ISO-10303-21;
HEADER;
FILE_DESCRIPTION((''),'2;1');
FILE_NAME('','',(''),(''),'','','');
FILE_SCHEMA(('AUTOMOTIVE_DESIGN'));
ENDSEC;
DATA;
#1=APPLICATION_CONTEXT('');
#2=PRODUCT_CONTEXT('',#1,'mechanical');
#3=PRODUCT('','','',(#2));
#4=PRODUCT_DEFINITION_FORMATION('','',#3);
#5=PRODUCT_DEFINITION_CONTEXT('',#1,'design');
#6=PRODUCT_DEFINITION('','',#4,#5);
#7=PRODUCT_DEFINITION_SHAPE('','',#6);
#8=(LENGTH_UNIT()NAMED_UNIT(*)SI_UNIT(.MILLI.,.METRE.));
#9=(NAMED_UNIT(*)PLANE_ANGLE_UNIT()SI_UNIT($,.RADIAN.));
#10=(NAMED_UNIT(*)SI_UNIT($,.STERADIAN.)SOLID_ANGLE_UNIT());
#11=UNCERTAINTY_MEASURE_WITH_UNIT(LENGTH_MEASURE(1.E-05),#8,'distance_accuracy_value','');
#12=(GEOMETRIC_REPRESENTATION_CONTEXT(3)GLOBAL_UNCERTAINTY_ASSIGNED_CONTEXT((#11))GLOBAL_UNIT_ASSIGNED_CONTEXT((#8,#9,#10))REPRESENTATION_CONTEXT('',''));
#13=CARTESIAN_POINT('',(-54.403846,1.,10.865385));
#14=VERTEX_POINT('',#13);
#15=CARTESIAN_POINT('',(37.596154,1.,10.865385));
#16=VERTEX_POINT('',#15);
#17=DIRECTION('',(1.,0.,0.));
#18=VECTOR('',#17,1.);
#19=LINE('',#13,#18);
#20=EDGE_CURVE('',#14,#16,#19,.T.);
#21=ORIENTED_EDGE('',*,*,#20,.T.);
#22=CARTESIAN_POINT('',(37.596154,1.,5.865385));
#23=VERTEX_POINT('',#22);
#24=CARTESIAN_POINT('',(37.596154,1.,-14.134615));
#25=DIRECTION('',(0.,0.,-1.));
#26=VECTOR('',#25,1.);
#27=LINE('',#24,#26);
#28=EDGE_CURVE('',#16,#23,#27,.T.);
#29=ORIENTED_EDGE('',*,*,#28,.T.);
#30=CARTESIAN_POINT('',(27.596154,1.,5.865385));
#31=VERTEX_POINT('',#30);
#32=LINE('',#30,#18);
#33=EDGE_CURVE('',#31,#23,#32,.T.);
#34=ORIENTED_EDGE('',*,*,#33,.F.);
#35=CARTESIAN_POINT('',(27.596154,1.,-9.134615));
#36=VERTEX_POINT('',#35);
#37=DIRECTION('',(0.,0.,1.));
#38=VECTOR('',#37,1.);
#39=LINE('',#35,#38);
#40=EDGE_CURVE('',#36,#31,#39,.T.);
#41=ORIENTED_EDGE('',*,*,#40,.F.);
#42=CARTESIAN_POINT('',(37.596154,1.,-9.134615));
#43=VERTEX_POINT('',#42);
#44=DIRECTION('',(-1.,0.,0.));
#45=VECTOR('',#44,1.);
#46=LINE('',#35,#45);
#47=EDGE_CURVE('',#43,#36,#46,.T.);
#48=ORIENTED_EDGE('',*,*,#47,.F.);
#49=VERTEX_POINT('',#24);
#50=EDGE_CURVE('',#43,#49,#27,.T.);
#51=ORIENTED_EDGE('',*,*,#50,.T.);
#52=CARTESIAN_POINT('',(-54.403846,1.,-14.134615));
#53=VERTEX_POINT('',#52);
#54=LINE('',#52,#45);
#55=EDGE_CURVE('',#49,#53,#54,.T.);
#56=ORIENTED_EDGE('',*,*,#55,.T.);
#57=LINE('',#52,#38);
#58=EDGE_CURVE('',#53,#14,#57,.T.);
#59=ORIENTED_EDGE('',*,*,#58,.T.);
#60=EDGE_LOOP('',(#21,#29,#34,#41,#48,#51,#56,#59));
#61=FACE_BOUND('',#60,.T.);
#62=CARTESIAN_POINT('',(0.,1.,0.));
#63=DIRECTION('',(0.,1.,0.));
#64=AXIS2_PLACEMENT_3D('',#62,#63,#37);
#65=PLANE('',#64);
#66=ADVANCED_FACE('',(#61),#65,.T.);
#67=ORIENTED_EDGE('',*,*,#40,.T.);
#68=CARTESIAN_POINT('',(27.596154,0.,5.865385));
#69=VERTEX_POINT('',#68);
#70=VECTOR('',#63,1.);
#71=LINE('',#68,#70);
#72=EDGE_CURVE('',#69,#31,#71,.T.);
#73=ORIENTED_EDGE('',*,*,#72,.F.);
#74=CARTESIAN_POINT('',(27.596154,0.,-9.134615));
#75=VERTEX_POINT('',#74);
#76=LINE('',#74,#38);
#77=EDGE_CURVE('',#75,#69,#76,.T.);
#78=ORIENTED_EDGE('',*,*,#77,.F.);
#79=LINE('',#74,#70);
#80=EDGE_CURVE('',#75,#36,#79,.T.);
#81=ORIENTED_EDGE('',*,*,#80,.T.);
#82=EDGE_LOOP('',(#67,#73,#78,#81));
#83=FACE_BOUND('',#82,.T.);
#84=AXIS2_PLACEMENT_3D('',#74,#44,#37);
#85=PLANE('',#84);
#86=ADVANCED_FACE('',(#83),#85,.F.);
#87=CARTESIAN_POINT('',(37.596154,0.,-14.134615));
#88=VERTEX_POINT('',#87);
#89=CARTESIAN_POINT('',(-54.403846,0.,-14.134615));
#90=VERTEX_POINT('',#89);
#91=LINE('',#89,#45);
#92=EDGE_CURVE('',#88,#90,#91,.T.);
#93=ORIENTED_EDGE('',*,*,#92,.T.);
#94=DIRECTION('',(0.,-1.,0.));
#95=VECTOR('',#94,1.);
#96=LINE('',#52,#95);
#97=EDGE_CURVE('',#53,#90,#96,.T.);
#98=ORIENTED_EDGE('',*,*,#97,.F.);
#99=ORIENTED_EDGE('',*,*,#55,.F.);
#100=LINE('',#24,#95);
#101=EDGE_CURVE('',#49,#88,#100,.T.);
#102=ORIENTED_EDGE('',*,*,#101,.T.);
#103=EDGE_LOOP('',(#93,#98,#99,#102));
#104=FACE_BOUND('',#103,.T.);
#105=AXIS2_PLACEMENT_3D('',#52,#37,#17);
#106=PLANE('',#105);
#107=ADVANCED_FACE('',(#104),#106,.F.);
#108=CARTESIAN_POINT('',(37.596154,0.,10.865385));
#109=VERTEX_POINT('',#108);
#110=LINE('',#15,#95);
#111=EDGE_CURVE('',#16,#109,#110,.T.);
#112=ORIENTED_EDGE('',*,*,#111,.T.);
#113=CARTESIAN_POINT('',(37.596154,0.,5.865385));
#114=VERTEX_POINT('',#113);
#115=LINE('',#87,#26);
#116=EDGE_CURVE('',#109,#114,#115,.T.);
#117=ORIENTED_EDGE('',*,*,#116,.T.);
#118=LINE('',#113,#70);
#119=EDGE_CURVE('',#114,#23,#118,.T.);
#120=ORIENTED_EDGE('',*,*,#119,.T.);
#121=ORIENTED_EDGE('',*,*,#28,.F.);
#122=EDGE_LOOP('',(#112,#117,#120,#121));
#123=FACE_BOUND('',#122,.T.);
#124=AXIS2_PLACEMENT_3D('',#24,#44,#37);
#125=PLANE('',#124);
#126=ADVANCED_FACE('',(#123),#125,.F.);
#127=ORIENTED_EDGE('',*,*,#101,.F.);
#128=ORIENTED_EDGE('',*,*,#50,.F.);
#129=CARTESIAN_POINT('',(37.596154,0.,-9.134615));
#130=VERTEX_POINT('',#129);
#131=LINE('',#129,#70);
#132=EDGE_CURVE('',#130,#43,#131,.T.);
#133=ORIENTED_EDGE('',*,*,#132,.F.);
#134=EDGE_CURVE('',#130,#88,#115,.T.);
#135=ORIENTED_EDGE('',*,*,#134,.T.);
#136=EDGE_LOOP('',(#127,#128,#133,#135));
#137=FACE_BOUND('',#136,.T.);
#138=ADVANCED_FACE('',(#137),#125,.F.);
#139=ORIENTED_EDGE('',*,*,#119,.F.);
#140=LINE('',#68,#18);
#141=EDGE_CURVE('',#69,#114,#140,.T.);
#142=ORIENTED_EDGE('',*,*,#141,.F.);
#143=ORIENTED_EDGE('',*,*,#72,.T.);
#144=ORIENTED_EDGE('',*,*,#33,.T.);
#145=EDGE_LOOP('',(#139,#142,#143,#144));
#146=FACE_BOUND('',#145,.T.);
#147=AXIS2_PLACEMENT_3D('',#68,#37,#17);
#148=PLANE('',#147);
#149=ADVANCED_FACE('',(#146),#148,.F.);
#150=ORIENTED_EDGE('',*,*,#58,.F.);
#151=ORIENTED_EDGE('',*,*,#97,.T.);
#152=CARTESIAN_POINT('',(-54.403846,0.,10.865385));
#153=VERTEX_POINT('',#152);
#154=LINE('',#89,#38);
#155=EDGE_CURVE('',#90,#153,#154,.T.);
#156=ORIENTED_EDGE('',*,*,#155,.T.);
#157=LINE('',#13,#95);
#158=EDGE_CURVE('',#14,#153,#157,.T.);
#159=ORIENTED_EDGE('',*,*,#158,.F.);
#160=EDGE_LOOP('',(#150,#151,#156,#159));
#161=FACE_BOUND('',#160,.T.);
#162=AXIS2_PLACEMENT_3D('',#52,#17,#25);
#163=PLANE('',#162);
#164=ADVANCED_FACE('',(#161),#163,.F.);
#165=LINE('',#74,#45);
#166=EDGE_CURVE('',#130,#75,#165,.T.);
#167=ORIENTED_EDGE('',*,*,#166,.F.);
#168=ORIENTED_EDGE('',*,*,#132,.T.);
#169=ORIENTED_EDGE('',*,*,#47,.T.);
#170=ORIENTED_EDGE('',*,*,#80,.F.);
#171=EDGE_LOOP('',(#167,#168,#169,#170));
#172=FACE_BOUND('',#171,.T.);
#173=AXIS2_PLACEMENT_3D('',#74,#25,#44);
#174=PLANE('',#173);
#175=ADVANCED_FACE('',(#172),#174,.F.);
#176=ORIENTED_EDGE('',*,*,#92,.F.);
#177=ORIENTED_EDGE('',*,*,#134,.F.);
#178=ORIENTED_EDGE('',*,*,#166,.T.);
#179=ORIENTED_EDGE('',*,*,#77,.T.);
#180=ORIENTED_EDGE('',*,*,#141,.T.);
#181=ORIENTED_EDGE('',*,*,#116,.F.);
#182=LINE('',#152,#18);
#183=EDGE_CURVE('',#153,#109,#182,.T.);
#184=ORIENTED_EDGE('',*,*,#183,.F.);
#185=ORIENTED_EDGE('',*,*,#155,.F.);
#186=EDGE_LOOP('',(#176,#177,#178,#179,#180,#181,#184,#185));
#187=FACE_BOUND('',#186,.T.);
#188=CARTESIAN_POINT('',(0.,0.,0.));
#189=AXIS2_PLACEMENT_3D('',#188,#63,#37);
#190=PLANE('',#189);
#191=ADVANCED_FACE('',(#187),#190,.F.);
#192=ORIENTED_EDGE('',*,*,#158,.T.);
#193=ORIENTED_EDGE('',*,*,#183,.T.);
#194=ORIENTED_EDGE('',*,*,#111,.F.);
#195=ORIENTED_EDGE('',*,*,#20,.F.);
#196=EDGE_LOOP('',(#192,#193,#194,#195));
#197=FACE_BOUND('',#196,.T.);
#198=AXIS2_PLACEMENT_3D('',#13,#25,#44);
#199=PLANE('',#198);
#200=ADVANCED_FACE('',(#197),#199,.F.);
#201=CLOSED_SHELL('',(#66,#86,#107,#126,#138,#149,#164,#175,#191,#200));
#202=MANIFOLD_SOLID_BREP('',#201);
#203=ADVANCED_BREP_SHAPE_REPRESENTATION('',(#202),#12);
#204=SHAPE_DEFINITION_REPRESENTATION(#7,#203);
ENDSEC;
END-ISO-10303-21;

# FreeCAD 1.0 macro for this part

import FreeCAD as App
import Part
import Sketcher

V = App.Vector

doc = App.newDocument("Part")
body = doc.addObject("PartDesign::Body", "Body")

# Sketch on XZ plane
sketch1 = body.newObject("Sketcher::SketchObject", "Sketch")
sketch1.AttachmentSupport = (doc.getObject("XZ_Plane"), [""])
sketch1.MapMode = "FlatFace"
sketch1.addGeometry(Part.LineSegment(V(-54.403846, -14.134615, 0), V(-54.403846, 10.865385, 0)), False)
sketch1.addGeometry(Part.LineSegment(V(-54.403846, 10.865385, 0), V(37.596154, 10.865385, 0)), False)
sketch1.addGeometry(Part.LineSegment(V(37.596154, 10.865385, 0), V(37.596154, -14.134615, 0)), False)
sketch1.addGeometry(Part.LineSegment(V(37.596154, -14.134615, 0), V(-54.403846, -14.134615, 0)), False)
sketch1.addConstraint(Sketcher.Constraint("Coincident", 0, 2, 1, 1))
sketch1.addConstraint(Sketcher.Constraint("Coincident", 1, 2, 2, 1))
sketch1.addConstraint(Sketcher.Constraint("Coincident", 2, 2, 3, 1))
sketch1.addConstraint(Sketcher.Constraint("Coincident", 3, 2, 0, 1))
sketch1.addConstraint(Sketcher.Constraint("Vertical", 0))
sketch1.addConstraint(Sketcher.Constraint("Horizontal", 1))
sketch1.addConstraint(Sketcher.Constraint("Vertical", 2))
sketch1.addConstraint(Sketcher.Constraint("Horizontal", 3))
sketch1.addConstraint(Sketcher.Constraint("DistanceX", 1, 1, 1, 2, 92.0))
sketch1.addConstraint(Sketcher.Constraint("DistanceY", 0, 1, 0, 2, 25.0))
sketch1.addConstraint(Sketcher.Constraint("DistanceX", 0, 2, -1, 1, 54.403846))
sketch1.addConstraint(Sketcher.Constraint("DistanceY", -1, 1, 0, 2, 10.865385))
pad1 = body.newObject("PartDesign::Pad", "Pad")
pad1.Profile = sketch1
pad1.Length = 1
pad1.Reversed = True

# Sketch on XZ plane
sketch2 = body.newObject("Sketcher::SketchObject", "Sketch001")
sketch2.AttachmentSupport = (doc.getObject("XZ_Plane"), [""])
sketch2.MapMode = "FlatFace"
sketch2.AttachmentOffset = App.Placement(V(0, 0, -1), App.Rotation())
sketch2.addGeometry(Part.LineSegment(V(27.596154, -9.134615, 0), V(27.596154, 5.865385, 0)), False)
sketch2.addGeometry(Part.LineSegment(V(27.596154, 5.865385, 0), V(37.596154, 5.865385, 0)), False)
sketch2.addGeometry(Part.LineSegment(V(37.596154, 5.865385, 0), V(37.596154, -9.134615, 0)), False)
sketch2.addGeometry(Part.LineSegment(V(37.596154, -9.134615, 0), V(27.596154, -9.134615, 0)), False)
sketch2.addConstraint(Sketcher.Constraint("Coincident", 0, 2, 1, 1))
sketch2.addConstraint(Sketcher.Constraint("Coincident", 1, 2, 2, 1))
sketch2.addConstraint(Sketcher.Constraint("Coincident", 2, 2, 3, 1))
sketch2.addConstraint(Sketcher.Constraint("Coincident", 3, 2, 0, 1))
sketch2.addConstraint(Sketcher.Constraint("Vertical", 0))
sketch2.addConstraint(Sketcher.Constraint("Horizontal", 1))
sketch2.addConstraint(Sketcher.Constraint("Vertical", 2))
sketch2.addConstraint(Sketcher.Constraint("Horizontal", 3))
sketch2.addConstraint(Sketcher.Constraint("DistanceX", 1, 1, 1, 2, 10.0))
sketch2.addConstraint(Sketcher.Constraint("DistanceY", 0, 1, 0, 2, 15.0))
sketch2.addConstraint(Sketcher.Constraint("DistanceX", -1, 1, 0, 2, 27.596154))
sketch2.addConstraint(Sketcher.Constraint("DistanceY", -1, 1, 0, 2, 5.865385))
pocket1 = body.newObject("PartDesign::Pocket", "Pocket")
pocket1.Profile = sketch2
pocket1.Length = 1
pocket1.Reversed = True

doc.recompute()
